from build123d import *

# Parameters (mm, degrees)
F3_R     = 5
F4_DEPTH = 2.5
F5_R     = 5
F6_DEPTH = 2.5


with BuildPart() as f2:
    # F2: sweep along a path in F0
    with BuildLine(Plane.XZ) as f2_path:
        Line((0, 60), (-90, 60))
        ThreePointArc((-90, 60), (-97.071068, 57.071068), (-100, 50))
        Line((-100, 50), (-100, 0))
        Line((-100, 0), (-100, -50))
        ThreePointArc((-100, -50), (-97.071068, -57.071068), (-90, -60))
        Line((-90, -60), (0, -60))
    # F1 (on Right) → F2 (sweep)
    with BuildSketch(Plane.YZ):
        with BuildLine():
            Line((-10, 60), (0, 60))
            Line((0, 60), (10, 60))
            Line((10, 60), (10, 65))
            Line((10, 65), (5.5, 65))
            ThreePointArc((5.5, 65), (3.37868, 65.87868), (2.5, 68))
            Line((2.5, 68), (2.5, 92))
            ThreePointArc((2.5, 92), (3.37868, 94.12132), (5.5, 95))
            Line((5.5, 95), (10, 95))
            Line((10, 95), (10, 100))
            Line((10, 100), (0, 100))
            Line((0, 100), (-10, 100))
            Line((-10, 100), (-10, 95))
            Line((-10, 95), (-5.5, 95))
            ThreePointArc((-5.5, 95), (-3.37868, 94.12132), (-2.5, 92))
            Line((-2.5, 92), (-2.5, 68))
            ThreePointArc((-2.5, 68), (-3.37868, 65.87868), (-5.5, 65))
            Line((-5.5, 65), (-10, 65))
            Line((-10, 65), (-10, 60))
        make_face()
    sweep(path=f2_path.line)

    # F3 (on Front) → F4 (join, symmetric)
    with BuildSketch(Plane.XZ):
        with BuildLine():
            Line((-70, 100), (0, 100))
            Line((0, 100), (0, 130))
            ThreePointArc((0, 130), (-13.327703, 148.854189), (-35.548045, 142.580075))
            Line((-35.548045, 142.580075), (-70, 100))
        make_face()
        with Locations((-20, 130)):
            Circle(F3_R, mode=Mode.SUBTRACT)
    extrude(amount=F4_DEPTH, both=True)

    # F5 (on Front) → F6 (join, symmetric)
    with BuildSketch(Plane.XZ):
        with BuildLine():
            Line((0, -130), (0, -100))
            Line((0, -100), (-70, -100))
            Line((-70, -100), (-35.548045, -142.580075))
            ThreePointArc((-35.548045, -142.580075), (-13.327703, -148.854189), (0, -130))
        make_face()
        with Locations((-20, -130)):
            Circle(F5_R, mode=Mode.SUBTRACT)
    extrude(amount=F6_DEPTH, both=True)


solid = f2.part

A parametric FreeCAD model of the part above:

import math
import FreeCAD as App
import Part
import Sketcher
from FreeCAD import Vector
Q = App.Units.Quantity

doc = App.newDocument("Part")
body = doc.addObject("PartDesign::Body", "Body")

sketch1 = body.newObject("Sketcher::SketchObject", "Sketch")
sketch1.AttachmentSupport = (doc.getObject("YZ_Plane"), [""])
sketch1.MapMode = "FlatFace"
sketch1.addGeometry([
    Part.LineSegment(Vector(-10, 60, 0), Vector(10, 60, 0)),
    Part.LineSegment(Vector(10, 60, 0), Vector(10, 65, 0)),
    Part.LineSegment(Vector(10, 65, 0), Vector(5.5, 65, 0)),
    Part.ArcOfCircle(Part.Circle(Vector(5.500001, 68.000001, 0), Vector(0, 0, 1), 3.000001), math.radians(-179.999978), math.radians(-90.000022)),
    Part.LineSegment(Vector(2.5, 68, 0), Vector(2.5, 92, 0)),
    Part.ArcOfCircle(Part.Circle(Vector(5.500001, 91.999999, 0), Vector(0, 0, 1), 3.000001), math.radians(90.000022), math.radians(179.999978)),
    Part.LineSegment(Vector(5.5, 95, 0), Vector(10, 95, 0)),
    Part.LineSegment(Vector(10, 95, 0), Vector(10, 100, 0)),
    Part.LineSegment(Vector(10, 100, 0), Vector(-10, 100, 0)),
    Part.LineSegment(Vector(-10, 100, 0), Vector(-10, 95, 0)),
    Part.LineSegment(Vector(-10, 95, 0), Vector(-5.5, 95, 0)),
    Part.ArcOfCircle(Part.Circle(Vector(-5.500001, 91.999999, 0), Vector(0, 0, 1), 3.000001), math.radians(0.000022), math.radians(89.999978)),
    Part.LineSegment(Vector(-2.5, 92, 0), Vector(-2.5, 68, 0)),
    Part.ArcOfCircle(Part.Circle(Vector(-5.500001, 68.000001, 0), Vector(0, 0, 1), 3.000001), math.radians(-89.999978), math.radians(-0.000022)),
    Part.LineSegment(Vector(-5.5, 65, 0), Vector(-10, 65, 0)),
    Part.LineSegment(Vector(-10, 65, 0), Vector(-10, 60, 0)),
], False)
sketch1.addConstraint([
    Sketcher.Constraint("Coincident", 0, 2, 1, 1),
    Sketcher.Constraint("Coincident", 1, 2, 2, 1),
    Sketcher.Constraint("Tangent", 2, 2, 3, 2),
    Sketcher.Constraint("Tangent", 3, 1, 4, 1),
    Sketcher.Constraint("Tangent", 4, 2, 5, 2),
    Sketcher.Constraint("Tangent", 5, 1, 6, 1),
    Sketcher.Constraint("Coincident", 6, 2, 7, 1),
    Sketcher.Constraint("Coincident", 7, 2, 8, 1),
    Sketcher.Constraint("Coincident", 8, 2, 9, 1),
    Sketcher.Constraint("Coincident", 9, 2, 10, 1),
    Sketcher.Constraint("Tangent", 10, 2, 11, 2),
    Sketcher.Constraint("Tangent", 11, 1, 12, 1),
    Sketcher.Constraint("Tangent", 12, 2, 13, 2),
    Sketcher.Constraint("Tangent", 13, 1, 14, 1),
    Sketcher.Constraint("Coincident", 14, 2, 15, 1),
    Sketcher.Constraint("Coincident", 15, 2, 0, 1),
    Sketcher.Constraint("Horizontal", 0),
    Sketcher.Constraint("Vertical", 1),
    Sketcher.Constraint("Horizontal", 2),
    Sketcher.Constraint("Vertical", 4),
    Sketcher.Constraint("Horizontal", 6),
    Sketcher.Constraint("Vertical", 7),
    Sketcher.Constraint("Horizontal", 8),
    Sketcher.Constraint("Vertical", 9),
    Sketcher.Constraint("Horizontal", 10),
    Sketcher.Constraint("Vertical", 12),
    Sketcher.Constraint("Horizontal", 14),
    Sketcher.Constraint("Vertical", 15),
    Sketcher.Constraint("Equal", 3, 5),
    Sketcher.Constraint("Equal", 5, 11),
    Sketcher.Constraint("Equal", 11, 13),
    Sketcher.Constraint("Symmetric", 5, 3, 11, 3, -2),
    Sketcher.Constraint("Symmetric", 1, 2, 14, 2, -2),
    Sketcher.Constraint("Vertical", 1, 2, 6, 2),
    Sketcher.Constraint("Vertical", 9, 2, 14, 2),
    Sketcher.Constraint("Equal", 1, 7),
    Sketcher.Constraint("Radius", 3, Q("3.000001 mm")),
    Sketcher.Constraint("DistanceX", 0, 1, 0, 2, Q("20 mm")),
    Sketcher.Constraint("DistanceY", 1, 1, 1, 2, Q("5 mm")),
    Sketcher.Constraint("DistanceY", 4, 1, 4, 2, Q("24 mm")),
    Sketcher.Constraint("DistanceX", 2, 2, 2, 1, Q("4.5 mm")),
    Sketcher.Constraint("DistanceY", -1, 1, 3, 3, Q("68.000001 mm")),
])

sketch2 = body.newObject("Sketcher::SketchObject", "Sketch001")
sketch2.AttachmentSupport = (doc.getObject("XZ_Plane"), [""])
sketch2.MapMode = "FlatFace"
sketch2.addGeometry([
    Part.LineSegment(Vector(0, 60, 0), Vector(-90, 60, 0)),
    Part.ArcOfCircle(Part.Circle(Vector(-90.000001, 50.000001, 0), Vector(0, 0, 1), 9.999999), math.radians(89.999996), math.radians(180.000004)),
    Part.LineSegment(Vector(-100, 50, 0), Vector(-100, -50, 0)),
    Part.ArcOfCircle(Part.Circle(Vector(-90.000001, -50.000001, 0), Vector(0, 0, 1), 9.999999), math.radians(179.999996), math.radians(270.000004)),
    Part.LineSegment(Vector(-90, -60, 0), Vector(0, -60, 0)),
], False)
sketch2.addConstraint([
    Sketcher.Constraint("Tangent", 0, 2, 1, 1),
    Sketcher.Constraint("Tangent", 1, 2, 2, 1),
    Sketcher.Constraint("Tangent", 2, 2, 3, 1),
    Sketcher.Constraint("Tangent", 3, 2, 4, 1),
    Sketcher.Constraint("Horizontal", 0),
    Sketcher.Constraint("Vertical", 2),
    Sketcher.Constraint("Horizontal", 4),
    Sketcher.Constraint("Equal", 1, 3),
    Sketcher.Constraint("Symmetric", 0, 1, 4, 2, -1, 1),
    Sketcher.Constraint("PointOnObject", 0, 1, -2),
    Sketcher.Constraint("Radius", 1, Q("9.999999 mm")),
    Sketcher.Constraint("DistanceX", 0, 2, 0, 1, Q("90 mm")),
    Sketcher.Constraint("DistanceY", 2, 2, 2, 1, Q("100 mm")),
])
doc.recompute()

additivepipe = body.newObject("PartDesign::AdditivePipe", "AdditivePipe")
additivepipe.Profile = sketch1
additivepipe.Spine = (sketch2, ["Edge1", "Edge2", "Edge3", "Edge4", "Edge5"])

sketch3 = body.newObject("Sketcher::SketchObject", "Sketch002")
sketch3.AttachmentSupport = (doc.getObject("XZ_Plane"), [""])
sketch3.MapMode = "FlatFace"
sketch3.addGeometry([
    Part.LineSegment(Vector(-70, 100, 0), Vector(0, 100, 0)),
    Part.LineSegment(Vector(0, 100, 0), Vector(0, 130, 0)),
    Part.ArcOfCircle(Part.Circle(Vector(-20, 130, 0), Vector(0, 0, 1), 20), math.radians(0.000001), math.radians(141.02334)),
    Part.LineSegment(Vector(-35.548045, 142.580075, 0), Vector(-70, 100, 0)),
    Part.Circle(Vector(-20, 130, 0), Vector(0, 0, 1), 5),
], False)
sketch3.addConstraint([
    Sketcher.Constraint("Coincident", 0, 2, 1, 1),
    Sketcher.Constraint("Tangent", 1, 2, 2, 1),
    Sketcher.Constraint("Tangent", 2, 2, 3, 1),
    Sketcher.Constraint("Coincident", 3, 2, 0, 1),
    Sketcher.Constraint("Horizontal", 0),
    Sketcher.Constraint("Vertical", 1),
    Sketcher.Constraint("Coincident", 4, 3, 2, 3),
    Sketcher.Constraint("PointOnObject", 0, 2, -2),
    Sketcher.Constraint("Diameter", 4, Q("10 mm")),
    Sketcher.Constraint("Radius", 2, Q("20 mm")),
    Sketcher.Constraint("DistanceX", 0, 1, 0, 2, Q("70 mm")),
    Sketcher.Constraint("DistanceY", 1, 1, 1, 2, Q("30 mm")),
    Sketcher.Constraint("DistanceY", -1, 1, 2, 3, Q("130 mm")),
])
pad1 = body.newObject("PartDesign::Pad", "Pad")
pad1.Profile = sketch3
pad1.Length = 5
pad1.Midplane = True

sketch4 = body.newObject("Sketcher::SketchObject", "Sketch003")
sketch4.AttachmentSupport = (doc.getObject("XZ_Plane"), [""])
sketch4.MapMode = "FlatFace"
sketch4.addGeometry([
    Part.LineSegment(Vector(0, -130, 0), Vector(0, -100, 0)),
    Part.LineSegment(Vector(0, -100, 0), Vector(-70, -100, 0)),
    Part.LineSegment(Vector(-70, -100, 0), Vector(-35.548045, -142.580075, 0)),
    Part.ArcOfCircle(Part.Circle(Vector(-20, -130, 0), Vector(0, 0, 1), 20), math.radians(-141.02334), math.radians(-0.000001)),
    Part.Circle(Vector(-20, -130, 0), Vector(0, 0, 1), 5),
], False)
sketch4.addConstraint([
    Sketcher.Constraint("Coincident", 0, 2, 1, 1),
    Sketcher.Constraint("Coincident", 1, 2, 2, 1),
    Sketcher.Constraint("Tangent", 2, 2, 3, 1),
    Sketcher.Constraint("Tangent", 3, 2, 0, 1),
    Sketcher.Constraint("Vertical", 0),
    Sketcher.Constraint("Horizontal", 1),
    Sketcher.Constraint("Coincident", 4, 3, 3, 3),
    Sketcher.Constraint("PointOnObject", 0, 2, -2),
    Sketcher.Constraint("Diameter", 4, Q("10 mm")),
    Sketcher.Constraint("Radius", 3, Q("20 mm")),
    Sketcher.Constraint("DistanceX", 1, 2, 1, 1, Q("70 mm")),
    Sketcher.Constraint("DistanceY", 0, 1, 0, 2, Q("30 mm")),
    Sketcher.Constraint("DistanceY", 3, 3, -1, 1, Q("130 mm")),
])
pad2 = body.newObject("PartDesign::Pad", "Pad001")
pad2.Profile = sketch4
pad2.Length = 5
pad2.Midplane = True

doc.recompute()
